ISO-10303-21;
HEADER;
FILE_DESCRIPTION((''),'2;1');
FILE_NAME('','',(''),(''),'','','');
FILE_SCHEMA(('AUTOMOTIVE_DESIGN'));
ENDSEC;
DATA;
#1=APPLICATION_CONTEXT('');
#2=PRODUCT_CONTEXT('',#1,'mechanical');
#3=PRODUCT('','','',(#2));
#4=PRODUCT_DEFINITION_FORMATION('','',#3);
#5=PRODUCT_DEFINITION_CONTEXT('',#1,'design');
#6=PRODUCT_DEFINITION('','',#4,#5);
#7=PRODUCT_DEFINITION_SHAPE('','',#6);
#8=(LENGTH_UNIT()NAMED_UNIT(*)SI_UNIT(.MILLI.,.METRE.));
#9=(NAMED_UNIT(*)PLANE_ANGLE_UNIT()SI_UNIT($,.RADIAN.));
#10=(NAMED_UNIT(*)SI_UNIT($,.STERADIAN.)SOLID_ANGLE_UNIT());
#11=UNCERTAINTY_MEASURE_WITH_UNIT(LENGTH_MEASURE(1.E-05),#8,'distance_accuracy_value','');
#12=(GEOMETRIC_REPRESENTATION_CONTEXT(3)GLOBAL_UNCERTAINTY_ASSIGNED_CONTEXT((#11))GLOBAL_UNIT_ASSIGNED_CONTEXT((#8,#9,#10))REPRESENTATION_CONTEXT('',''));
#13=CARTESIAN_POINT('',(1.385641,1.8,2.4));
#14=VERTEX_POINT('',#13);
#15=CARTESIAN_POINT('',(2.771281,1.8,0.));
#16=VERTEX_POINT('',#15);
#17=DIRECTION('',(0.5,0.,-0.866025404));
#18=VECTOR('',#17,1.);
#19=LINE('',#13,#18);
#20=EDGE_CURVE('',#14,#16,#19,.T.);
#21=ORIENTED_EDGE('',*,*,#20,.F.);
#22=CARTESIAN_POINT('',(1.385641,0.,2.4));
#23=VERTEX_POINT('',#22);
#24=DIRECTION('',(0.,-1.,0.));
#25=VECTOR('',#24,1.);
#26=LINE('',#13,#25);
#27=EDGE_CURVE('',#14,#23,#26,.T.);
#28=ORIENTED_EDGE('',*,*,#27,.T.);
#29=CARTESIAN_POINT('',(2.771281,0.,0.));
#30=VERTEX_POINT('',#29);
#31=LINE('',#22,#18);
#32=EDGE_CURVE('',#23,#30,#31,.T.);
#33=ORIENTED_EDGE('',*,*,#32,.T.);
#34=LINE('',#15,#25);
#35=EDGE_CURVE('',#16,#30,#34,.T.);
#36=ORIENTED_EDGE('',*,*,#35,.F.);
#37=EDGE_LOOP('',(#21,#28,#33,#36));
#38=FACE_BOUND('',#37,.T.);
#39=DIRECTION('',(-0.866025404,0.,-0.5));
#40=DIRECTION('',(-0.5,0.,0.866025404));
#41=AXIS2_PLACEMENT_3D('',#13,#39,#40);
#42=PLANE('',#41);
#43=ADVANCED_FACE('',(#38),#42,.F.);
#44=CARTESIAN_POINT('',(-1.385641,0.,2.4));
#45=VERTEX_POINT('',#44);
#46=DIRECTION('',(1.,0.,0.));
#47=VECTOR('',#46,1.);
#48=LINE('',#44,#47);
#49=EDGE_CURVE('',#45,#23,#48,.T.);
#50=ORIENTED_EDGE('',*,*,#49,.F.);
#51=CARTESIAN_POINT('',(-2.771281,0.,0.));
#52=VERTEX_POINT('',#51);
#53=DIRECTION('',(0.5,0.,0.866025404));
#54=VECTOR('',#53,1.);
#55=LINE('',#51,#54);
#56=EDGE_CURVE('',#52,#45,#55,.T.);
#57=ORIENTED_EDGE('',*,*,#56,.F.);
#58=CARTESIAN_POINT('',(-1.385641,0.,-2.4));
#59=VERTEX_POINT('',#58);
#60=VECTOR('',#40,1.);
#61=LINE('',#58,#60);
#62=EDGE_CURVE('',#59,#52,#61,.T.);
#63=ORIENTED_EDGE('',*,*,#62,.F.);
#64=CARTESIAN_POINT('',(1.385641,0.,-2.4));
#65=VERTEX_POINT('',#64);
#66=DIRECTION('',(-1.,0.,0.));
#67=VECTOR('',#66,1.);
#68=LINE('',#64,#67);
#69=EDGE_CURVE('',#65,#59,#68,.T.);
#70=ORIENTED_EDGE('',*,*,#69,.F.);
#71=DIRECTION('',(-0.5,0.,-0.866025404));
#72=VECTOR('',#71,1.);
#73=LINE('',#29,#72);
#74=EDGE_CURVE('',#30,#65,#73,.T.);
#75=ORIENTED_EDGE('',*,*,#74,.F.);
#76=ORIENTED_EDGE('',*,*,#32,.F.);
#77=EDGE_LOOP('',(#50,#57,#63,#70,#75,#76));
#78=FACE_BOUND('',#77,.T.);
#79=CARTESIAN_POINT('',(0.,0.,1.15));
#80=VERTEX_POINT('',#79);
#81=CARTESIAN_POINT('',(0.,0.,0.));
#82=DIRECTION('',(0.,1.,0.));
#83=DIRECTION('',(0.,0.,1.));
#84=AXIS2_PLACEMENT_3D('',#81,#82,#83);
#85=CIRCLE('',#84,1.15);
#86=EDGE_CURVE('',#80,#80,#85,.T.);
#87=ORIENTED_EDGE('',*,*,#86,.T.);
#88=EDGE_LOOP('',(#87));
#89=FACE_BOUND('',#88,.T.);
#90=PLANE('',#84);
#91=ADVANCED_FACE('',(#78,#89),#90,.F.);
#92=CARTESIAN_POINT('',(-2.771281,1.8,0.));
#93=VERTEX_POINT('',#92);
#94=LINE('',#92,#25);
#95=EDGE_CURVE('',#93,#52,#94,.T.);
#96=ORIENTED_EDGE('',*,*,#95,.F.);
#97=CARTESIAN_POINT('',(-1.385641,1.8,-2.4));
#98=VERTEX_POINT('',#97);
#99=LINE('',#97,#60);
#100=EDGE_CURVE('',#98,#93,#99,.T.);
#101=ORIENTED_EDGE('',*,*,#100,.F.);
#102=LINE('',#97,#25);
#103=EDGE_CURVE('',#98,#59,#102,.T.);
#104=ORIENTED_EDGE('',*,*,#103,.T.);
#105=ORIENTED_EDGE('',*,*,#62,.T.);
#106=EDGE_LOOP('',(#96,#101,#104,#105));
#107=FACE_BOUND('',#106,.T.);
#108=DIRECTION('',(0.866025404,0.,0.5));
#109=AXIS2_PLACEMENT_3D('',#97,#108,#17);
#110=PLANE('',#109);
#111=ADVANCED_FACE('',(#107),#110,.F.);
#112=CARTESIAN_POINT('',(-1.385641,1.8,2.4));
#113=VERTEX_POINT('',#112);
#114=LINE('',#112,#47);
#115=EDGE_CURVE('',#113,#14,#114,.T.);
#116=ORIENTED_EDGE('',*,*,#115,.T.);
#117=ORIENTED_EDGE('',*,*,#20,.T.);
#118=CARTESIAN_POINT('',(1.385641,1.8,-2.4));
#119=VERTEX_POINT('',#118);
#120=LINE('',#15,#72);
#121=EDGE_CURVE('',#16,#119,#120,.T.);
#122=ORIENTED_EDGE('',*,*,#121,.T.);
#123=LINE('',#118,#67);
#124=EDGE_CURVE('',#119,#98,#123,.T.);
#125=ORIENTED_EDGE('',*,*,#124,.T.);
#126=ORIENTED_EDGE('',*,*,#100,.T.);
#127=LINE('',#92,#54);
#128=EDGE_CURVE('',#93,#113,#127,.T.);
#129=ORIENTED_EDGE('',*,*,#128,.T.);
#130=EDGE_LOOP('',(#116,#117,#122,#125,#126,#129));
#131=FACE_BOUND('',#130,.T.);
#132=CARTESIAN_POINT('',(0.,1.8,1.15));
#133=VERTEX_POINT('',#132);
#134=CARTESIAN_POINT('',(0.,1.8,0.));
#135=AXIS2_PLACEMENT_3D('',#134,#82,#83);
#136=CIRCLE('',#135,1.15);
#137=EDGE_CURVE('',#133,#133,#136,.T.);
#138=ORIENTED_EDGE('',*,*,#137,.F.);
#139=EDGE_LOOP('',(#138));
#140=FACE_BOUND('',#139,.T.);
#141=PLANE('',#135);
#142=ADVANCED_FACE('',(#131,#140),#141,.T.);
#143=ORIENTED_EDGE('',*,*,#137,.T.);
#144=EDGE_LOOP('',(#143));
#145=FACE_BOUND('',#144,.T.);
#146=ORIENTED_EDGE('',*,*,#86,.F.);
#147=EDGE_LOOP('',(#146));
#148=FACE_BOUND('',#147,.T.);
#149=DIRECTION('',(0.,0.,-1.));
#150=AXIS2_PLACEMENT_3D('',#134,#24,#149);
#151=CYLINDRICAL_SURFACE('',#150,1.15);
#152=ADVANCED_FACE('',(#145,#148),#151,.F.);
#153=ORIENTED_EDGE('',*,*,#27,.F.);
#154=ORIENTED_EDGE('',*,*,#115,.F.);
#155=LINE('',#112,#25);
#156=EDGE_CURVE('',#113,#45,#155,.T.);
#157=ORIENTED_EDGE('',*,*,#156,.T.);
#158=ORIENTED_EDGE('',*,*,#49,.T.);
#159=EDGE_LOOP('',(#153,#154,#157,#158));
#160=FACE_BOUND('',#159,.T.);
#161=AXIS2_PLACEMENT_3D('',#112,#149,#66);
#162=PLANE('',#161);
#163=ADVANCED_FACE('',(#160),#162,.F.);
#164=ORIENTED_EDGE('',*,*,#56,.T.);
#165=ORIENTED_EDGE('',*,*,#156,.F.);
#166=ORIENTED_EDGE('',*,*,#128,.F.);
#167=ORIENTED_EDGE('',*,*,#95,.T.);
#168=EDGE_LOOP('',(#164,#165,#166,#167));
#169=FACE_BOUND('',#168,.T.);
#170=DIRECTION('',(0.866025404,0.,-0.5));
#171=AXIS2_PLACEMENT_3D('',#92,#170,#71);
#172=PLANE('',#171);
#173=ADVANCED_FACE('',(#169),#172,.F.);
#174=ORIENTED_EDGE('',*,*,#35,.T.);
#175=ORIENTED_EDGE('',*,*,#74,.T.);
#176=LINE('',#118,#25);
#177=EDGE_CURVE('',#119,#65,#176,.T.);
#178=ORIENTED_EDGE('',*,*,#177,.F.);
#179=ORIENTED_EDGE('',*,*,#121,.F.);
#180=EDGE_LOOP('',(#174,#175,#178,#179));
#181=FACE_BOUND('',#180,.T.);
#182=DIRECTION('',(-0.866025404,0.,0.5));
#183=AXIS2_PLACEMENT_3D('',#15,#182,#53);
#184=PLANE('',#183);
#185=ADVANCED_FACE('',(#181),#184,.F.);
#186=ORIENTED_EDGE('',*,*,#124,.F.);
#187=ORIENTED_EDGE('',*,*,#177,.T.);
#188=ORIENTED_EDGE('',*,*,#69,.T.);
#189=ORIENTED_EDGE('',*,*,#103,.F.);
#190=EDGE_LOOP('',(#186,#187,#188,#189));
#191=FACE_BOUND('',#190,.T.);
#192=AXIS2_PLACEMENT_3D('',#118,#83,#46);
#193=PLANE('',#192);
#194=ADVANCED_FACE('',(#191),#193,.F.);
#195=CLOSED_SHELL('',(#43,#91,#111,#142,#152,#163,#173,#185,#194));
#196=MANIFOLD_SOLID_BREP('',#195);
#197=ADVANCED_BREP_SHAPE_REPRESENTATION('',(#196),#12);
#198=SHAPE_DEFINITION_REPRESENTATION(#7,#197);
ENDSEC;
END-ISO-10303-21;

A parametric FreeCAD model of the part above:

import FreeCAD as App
import Part
import Sketcher
Q = App.Units.Quantity

doc = App.newDocument("Part")
params = doc.addObject("Spreadsheet::Sheet", "Params")
for row, (alias, value) in enumerate([
    ("sketch1_diameter", "2.3 mm"),
    ("pad1_length", "1.8 mm"),
], start=1):
    params.set(f"A{row}", alias)
    params.set(f"B{row}", "=" + value)
    params.setAlias(f"B{row}", alias)

body = doc.addObject("PartDesign::Body", "Body")

# Sketch on XZ plane
sketch1 = body.newObject("Sketcher::SketchObject", "Sketch")
sketch1.AttachmentSupport = (doc.getObject("XZ_Plane"), [""])
sketch1.MapMode = "FlatFace"
sketch1.addGeometry([
    Part.LineSegment(App.Vector(2.8, 0, 0), App.Vector(1.4, -2.4, 0)),  # 0
    Part.LineSegment(App.Vector(1.4, -2.4, 0), App.Vector(-1.4, -2.4, 0)),  # 1
    Part.LineSegment(App.Vector(-1.4, -2.4, 0), App.Vector(-2.8, 0, 0)),  # 2
    Part.LineSegment(App.Vector(-2.8, 0, 0), App.Vector(-1.4, 2.4, 0)),  # 3
    Part.LineSegment(App.Vector(-1.4, 2.4, 0), App.Vector(1.4, 2.4, 0)),  # 4
    Part.LineSegment(App.Vector(1.4, 2.4, 0), App.Vector(2.8, 0, 0)),  # 5
    Part.Circle(App.Vector(0, 0, 0), App.Vector(0, 0, 1), 1.1),  # 6
], False)
sketch1.addConstraint([
    Sketcher.Constraint("Coincident", 0, 2, 1, 1),
    Sketcher.Constraint("Coincident", 1, 2, 2, 1),
    Sketcher.Constraint("Coincident", 2, 2, 3, 1),
    Sketcher.Constraint("Coincident", 3, 2, 4, 1),
    Sketcher.Constraint("Coincident", 4, 2, 5, 1),
    Sketcher.Constraint("Coincident", 5, 2, 0, 1),
    Sketcher.Constraint("Horizontal", 1),
    Sketcher.Constraint("Horizontal", 4),
    Sketcher.Constraint("Coincident", 6, 3, -1, 1),
    Sketcher.Constraint("Symmetric", 0, 2, 3, 2, -1, 1),
    Sketcher.Constraint("Symmetric", 2, 2, 5, 2, -1, 1),
    Sketcher.Constraint("PointOnObject", 2, 2, -1),
    Sketcher.Constraint("Parallel", 2, 5),
    Sketcher.Constraint("Vertical", 1, 2, 3, 2),
    Sketcher.Constraint("Diameter", 6, Q("2.3 mm")),
    Sketcher.Constraint("Angle", 0, Q("-120 deg")),
    Sketcher.Constraint("DistanceY", 0, 2, -1, 1, Q("2.4 mm")),
    Sketcher.Constraint("DistanceX", 1, 2, 1, 1, Q("2.771281 mm")),
])
sketch1.setExpression("Constraints[14]", "Params.sketch1_diameter")
pad1 = body.newObject("PartDesign::Pad", "Pad")
pad1.Profile = sketch1
pad1.setExpression("Length", "Params.pad1_length")
pad1.Reversed = True

doc.recompute()
